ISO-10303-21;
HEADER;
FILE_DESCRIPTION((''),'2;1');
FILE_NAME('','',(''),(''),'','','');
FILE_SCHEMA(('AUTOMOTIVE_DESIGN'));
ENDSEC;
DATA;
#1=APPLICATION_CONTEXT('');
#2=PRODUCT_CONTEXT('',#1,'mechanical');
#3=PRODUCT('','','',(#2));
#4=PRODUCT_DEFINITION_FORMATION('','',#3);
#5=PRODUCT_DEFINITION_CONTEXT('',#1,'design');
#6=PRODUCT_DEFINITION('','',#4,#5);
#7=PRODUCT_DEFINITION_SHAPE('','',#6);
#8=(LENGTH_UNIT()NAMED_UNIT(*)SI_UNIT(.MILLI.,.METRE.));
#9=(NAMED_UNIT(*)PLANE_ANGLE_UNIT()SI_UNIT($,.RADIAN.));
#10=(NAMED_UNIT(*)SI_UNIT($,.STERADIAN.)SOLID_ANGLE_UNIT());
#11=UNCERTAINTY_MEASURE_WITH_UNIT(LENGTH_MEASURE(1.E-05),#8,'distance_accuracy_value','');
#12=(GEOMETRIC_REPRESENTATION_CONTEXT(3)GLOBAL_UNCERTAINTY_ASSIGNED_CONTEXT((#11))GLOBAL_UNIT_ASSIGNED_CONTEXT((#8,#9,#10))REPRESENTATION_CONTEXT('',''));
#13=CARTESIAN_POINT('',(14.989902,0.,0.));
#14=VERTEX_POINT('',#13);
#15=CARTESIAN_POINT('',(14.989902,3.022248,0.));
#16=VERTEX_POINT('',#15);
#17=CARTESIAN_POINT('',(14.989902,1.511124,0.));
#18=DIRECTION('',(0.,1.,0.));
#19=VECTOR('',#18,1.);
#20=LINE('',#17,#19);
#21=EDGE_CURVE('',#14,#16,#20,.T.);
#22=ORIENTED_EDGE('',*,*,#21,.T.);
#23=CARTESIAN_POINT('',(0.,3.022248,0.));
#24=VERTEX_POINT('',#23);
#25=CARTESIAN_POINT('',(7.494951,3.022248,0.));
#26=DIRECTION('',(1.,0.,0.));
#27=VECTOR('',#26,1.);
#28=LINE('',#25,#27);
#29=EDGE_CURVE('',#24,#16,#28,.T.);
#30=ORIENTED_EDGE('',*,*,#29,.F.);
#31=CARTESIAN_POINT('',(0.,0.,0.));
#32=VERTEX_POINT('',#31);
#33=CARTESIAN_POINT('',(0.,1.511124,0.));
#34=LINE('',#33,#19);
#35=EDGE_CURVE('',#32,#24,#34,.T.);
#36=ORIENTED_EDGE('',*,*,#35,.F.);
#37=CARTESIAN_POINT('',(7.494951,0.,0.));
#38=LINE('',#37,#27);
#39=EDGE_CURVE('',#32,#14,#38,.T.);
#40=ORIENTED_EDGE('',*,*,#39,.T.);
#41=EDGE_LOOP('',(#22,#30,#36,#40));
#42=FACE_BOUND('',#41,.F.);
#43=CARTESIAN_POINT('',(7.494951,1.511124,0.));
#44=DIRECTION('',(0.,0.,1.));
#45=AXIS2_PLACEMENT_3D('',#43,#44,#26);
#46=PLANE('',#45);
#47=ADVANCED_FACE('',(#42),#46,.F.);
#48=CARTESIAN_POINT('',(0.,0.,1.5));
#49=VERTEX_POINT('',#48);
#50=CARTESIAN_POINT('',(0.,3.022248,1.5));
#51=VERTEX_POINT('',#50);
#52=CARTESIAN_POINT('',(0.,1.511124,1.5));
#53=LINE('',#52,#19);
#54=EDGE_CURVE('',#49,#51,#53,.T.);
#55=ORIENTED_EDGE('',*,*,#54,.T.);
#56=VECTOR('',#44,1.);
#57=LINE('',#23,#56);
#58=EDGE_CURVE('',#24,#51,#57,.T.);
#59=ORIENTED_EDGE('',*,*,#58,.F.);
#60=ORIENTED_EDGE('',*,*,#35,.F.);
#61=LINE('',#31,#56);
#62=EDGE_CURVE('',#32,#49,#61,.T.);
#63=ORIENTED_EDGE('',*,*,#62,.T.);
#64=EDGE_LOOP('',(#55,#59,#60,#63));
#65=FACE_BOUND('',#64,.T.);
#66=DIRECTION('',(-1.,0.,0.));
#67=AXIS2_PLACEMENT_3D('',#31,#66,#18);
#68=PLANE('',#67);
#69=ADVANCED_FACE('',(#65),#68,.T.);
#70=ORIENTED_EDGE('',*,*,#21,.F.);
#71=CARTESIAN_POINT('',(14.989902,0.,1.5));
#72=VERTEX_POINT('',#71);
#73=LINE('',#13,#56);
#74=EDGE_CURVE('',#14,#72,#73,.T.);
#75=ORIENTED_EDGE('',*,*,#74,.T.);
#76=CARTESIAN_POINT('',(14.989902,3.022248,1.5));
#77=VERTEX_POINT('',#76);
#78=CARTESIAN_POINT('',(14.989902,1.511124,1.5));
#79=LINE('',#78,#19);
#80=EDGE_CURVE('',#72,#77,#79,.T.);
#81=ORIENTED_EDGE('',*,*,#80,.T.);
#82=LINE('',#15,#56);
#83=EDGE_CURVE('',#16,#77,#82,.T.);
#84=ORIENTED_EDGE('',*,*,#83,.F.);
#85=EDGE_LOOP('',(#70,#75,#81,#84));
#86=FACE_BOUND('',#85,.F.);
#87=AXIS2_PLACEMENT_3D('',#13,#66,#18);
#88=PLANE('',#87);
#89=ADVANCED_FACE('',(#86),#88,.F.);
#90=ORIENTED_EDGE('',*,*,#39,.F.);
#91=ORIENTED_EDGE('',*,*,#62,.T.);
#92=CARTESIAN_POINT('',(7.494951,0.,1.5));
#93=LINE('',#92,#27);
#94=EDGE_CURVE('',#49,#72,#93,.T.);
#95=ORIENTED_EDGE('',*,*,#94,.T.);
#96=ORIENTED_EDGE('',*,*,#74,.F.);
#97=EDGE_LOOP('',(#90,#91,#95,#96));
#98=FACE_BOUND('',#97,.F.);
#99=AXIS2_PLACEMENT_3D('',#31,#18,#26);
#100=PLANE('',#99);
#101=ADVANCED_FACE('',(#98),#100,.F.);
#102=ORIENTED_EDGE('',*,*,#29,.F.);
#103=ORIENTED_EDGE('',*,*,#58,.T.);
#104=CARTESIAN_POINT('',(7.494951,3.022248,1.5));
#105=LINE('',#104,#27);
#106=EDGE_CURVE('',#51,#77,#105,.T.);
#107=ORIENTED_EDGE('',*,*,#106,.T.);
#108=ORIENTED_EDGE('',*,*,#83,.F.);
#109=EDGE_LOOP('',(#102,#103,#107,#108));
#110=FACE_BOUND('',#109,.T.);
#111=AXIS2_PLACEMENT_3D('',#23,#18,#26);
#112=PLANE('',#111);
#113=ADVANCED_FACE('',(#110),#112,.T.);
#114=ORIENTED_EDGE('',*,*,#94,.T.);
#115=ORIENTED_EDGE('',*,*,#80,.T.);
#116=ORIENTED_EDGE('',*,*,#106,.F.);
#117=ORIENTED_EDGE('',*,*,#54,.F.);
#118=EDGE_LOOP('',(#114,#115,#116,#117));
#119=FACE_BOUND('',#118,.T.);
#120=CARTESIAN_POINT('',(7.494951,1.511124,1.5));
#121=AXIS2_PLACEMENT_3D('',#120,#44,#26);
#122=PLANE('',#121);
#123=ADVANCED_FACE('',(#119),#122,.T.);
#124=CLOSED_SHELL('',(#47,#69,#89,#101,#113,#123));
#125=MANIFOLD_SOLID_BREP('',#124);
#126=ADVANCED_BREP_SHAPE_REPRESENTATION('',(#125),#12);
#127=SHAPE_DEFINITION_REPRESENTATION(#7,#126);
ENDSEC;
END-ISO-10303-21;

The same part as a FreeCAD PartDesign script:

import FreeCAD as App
import Part
import Sketcher

V = App.Vector
Q = App.Units.Quantity


def add_polygon(sketch, points):
    """Adds a closed chain of lines whose ends are joined by coincident constraints."""
    first, n = sketch.GeometryCount, len(points)
    for a, b in zip(points, points[1:] + points[:1]):
        sketch.addGeometry(Part.LineSegment(App.Vector(*a, 0), App.Vector(*b, 0)), False)
    for i in range(n):
        sketch.addConstraint(Sketcher.Constraint("Coincident", first + i, 2, first + (i + 1) % n, 1))

doc = App.newDocument("Part")
body = doc.addObject("PartDesign::Body", "Body")

sketch1 = doc.addObject("Sketcher::SketchObject", "Sketch")
body.addObject(sketch1)
sketch1.AttachmentSupport = (doc.XY_Plane, [""])
sketch1.MapMode = "FlatFace"
add_polygon(sketch1, [(0, 3), (0, 0), (15, 0), (15, 3)])
sketch1.addConstraint([
    Sketcher.Constraint("Vertical", 0),
    Sketcher.Constraint("Horizontal", 1),
    Sketcher.Constraint("Vertical", 2),
    Sketcher.Constraint("Horizontal", 3),
    Sketcher.Constraint("Coincident", 0, 2, -1, 1),
    Sketcher.Constraint("DistanceX", 1, 1, 1, 2, Q("14.989902 mm")),
    Sketcher.Constraint("DistanceY", 0, 2, 0, 1, Q("3.022248 mm")),
])
pad1 = doc.addObject("PartDesign::Pad", "Pad")
body.addObject(pad1)
pad1.Profile = sketch1
pad1.Length = 1.5

doc.recompute()
